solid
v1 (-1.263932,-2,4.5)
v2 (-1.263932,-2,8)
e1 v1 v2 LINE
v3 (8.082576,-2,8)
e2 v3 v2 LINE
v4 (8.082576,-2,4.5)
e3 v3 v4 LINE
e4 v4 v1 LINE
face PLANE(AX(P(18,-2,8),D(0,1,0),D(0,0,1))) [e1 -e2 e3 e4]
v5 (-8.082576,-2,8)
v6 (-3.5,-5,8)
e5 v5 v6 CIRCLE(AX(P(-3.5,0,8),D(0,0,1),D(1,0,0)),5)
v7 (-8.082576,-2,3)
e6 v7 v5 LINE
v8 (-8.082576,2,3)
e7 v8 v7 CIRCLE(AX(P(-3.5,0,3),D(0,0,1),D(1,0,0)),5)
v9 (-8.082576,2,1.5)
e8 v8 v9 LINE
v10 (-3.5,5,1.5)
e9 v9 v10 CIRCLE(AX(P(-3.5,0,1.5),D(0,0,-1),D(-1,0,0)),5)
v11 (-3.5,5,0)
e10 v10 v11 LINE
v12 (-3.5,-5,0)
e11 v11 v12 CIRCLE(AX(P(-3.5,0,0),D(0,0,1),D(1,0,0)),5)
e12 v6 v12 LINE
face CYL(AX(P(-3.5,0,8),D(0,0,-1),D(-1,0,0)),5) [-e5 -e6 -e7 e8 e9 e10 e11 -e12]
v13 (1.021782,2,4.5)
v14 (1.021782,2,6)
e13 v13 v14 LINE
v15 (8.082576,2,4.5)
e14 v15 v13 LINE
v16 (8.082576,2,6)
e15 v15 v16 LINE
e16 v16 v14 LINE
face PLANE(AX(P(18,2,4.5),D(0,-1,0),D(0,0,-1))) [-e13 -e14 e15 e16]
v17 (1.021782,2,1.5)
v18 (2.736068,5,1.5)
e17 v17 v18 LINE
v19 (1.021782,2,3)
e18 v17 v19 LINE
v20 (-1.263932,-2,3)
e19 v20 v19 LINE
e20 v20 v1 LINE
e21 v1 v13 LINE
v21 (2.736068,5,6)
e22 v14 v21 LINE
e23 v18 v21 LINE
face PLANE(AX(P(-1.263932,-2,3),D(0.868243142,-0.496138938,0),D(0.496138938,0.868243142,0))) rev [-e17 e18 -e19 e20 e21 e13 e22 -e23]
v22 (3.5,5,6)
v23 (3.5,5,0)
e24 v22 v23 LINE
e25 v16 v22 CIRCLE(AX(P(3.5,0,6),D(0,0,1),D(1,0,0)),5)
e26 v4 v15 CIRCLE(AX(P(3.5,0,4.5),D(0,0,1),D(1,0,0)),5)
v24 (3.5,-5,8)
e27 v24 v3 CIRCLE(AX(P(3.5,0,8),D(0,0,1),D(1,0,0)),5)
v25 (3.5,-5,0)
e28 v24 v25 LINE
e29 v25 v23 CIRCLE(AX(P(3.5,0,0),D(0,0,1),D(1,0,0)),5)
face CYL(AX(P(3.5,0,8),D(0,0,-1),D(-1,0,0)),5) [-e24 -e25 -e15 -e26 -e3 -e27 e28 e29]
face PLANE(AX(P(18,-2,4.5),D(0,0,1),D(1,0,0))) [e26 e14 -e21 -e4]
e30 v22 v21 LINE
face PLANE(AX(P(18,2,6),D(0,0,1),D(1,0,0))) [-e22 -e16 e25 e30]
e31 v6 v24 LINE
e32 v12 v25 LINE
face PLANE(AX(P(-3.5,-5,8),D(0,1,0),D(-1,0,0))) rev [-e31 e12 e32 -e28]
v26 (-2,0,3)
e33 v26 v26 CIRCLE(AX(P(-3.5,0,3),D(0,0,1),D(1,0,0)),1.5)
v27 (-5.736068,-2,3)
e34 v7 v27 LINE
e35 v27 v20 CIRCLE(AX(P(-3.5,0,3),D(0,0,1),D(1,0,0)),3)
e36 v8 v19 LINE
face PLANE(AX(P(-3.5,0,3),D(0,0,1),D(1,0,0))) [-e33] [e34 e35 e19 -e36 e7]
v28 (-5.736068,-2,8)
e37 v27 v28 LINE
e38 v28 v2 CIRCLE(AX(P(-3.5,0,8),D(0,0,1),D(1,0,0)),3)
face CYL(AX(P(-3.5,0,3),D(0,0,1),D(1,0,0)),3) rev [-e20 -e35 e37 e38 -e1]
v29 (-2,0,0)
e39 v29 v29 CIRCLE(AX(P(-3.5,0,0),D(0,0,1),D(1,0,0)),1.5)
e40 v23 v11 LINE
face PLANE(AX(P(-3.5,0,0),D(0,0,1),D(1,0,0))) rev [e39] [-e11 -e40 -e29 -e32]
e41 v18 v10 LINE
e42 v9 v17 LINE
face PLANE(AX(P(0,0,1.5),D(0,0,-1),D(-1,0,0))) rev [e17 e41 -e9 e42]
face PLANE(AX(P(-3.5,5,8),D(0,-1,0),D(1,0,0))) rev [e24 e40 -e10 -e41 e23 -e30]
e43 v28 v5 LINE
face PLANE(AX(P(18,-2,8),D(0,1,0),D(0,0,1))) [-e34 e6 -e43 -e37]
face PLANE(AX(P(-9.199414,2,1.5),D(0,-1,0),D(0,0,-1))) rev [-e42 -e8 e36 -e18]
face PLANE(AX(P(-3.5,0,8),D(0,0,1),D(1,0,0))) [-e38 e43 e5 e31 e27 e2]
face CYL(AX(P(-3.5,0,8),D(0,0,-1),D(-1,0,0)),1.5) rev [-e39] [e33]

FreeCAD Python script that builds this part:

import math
import FreeCAD as App
import Part
import Sketcher
from FreeCAD import Vector


def add_polygon(sketch, points):
    """Adds a closed chain of lines whose ends are joined by coincident constraints."""
    first, n = sketch.GeometryCount, len(points)
    for a, b in zip(points, points[1:] + points[:1]):
        sketch.addGeometry(Part.LineSegment(App.Vector(*a, 0), App.Vector(*b, 0)), False)
    for i in range(n):
        sketch.addConstraint(Sketcher.Constraint("Coincident", first + i, 2, first + (i + 1) % n, 1))

doc = App.newDocument("Part")
body = doc.addObject("PartDesign::Body", "Body")

sketch1 = body.newObject("Sketcher::SketchObject", "Sketch")
sketch1.AttachmentSupport = (doc.getObject("XY_Plane"), [""])
sketch1.MapMode = "FlatFace"
sketch1.addGeometry(Part.LineSegment(Vector(3.5, 5, 0), Vector(-3.5, 5, 0)), False)
sketch1.addGeometry(Part.ArcOfCircle(Part.Circle(Vector(-3.5, 0, 0), Vector(0, 0, 1), 5), math.radians(90), math.radians(270)), False)
sketch1.addGeometry(Part.LineSegment(Vector(-3.5, -5, 0), Vector(3.5, -5, 0)), False)
sketch1.addGeometry(Part.ArcOfCircle(Part.Circle(Vector(3.5, 0, 0), Vector(0, 0, 1), 5), math.radians(-90), math.radians(90)), False)
sketch1.addGeometry(Part.Circle(Vector(-3.5, 0, 0), Vector(0, 0, 1), 1.5), False)
sketch1.addConstraint(Sketcher.Constraint("Tangent", 0, 2, 1, 1))
sketch1.addConstraint(Sketcher.Constraint("Tangent", 1, 2, 2, 1))
sketch1.addConstraint(Sketcher.Constraint("Tangent", 2, 2, 3, 1))
sketch1.addConstraint(Sketcher.Constraint("Tangent", 3, 2, 0, 1))
sketch1.addConstraint(Sketcher.Constraint("Horizontal", 0))
sketch1.addConstraint(Sketcher.Constraint("Horizontal", 2))
sketch1.addConstraint(Sketcher.Constraint("Coincident", 4, 3, 1, 3))
sketch1.addConstraint(Sketcher.Constraint("Symmetric", 1, 3, 3, 3, -1, 1))
sketch1.addConstraint(Sketcher.Constraint("Diameter", 4, 3.0))
sketch1.addConstraint(Sketcher.Constraint("Radius", 1, 5.0))
sketch1.addConstraint(Sketcher.Constraint("DistanceX", 0, 2, 0, 1, 7.0))
pad1 = body.newObject("PartDesign::Pad", "Pad")
pad1.Profile = sketch1
pad1.Length = 8

sketch2 = body.newObject("Sketcher::SketchObject", "Sketch001")
sketch2.AttachmentSupport = (doc.getObject("YZ_Plane"), [""])
sketch2.MapMode = "FlatFace"
add_polygon(sketch2, [(-2, 8), (-2, 4.5), (2, 4.5), (2, 6), (5, 6), (5, 8)])
sketch2.addConstraint(Sketcher.Constraint("Vertical", 0))
sketch2.addConstraint(Sketcher.Constraint("Horizontal", 1))
sketch2.addConstraint(Sketcher.Constraint("Vertical", 2))
sketch2.addConstraint(Sketcher.Constraint("Horizontal", 3))
sketch2.addConstraint(Sketcher.Constraint("Vertical", 4))
sketch2.addConstraint(Sketcher.Constraint("Horizontal", 5))
sketch2.addConstraint(Sketcher.Constraint("DistanceX", 1, 1, 1, 2, 4.0))
sketch2.addConstraint(Sketcher.Constraint("DistanceX", 3, 1, 3, 2, 3.0))
sketch2.addConstraint(Sketcher.Constraint("DistanceY", 4, 1, 4, 2, 2.0))
sketch2.addConstraint(Sketcher.Constraint("DistanceY", 0, 2, 0, 1, 3.5))
sketch2.addConstraint(Sketcher.Constraint("DistanceX", 0, 2, -1, 1, 2.0))
sketch2.addConstraint(Sketcher.Constraint("DistanceY", -1, 1, 2, 2, 6.0))
pocket1 = body.newObject("PartDesign::Pocket", "Pocket")
pocket1.Profile = sketch2
pocket1.Type = "ThroughAll"
pocket1.Midplane = True

sketch3 = body.newObject("Sketcher::SketchObject", "Sketch002")
sketch3.AttachmentSupport = (doc.getObject("XY_Plane"), [""])
sketch3.MapMode = "FlatFace"
sketch3.AttachmentOffset = App.Placement(Vector(0, 0, 8), App.Rotation())
sketch3.addGeometry(Part.LineSegment(Vector(-1.263932, -2, 0), Vector(2.736068, 5, 0)), False)
sketch3.addGeometry(Part.LineSegment(Vector(2.736068, 5, 0), Vector(-10.787192, 5, 0)), False)
sketch3.addGeometry(Part.LineSegment(Vector(-10.787192, 5, 0), Vector(-10.787192, -2, 0)), False)
sketch3.addGeometry(Part.LineSegment(Vector(-10.787192, -2, 0), Vector(-5.736068, -2, 0)), False)
sketch3.addGeometry(Part.ArcOfCircle(Part.Circle(Vector(-3.5, 0, 0), Vector(0, 0, 1), 3), math.radians(-138.189685), math.radians(-41.810315)), False)
sketch3.addConstraint(Sketcher.Constraint("Coincident", 0, 2, 1, 1))
sketch3.addConstraint(Sketcher.Constraint("Coincident", 1, 2, 2, 1))
sketch3.addConstraint(Sketcher.Constraint("Coincident", 2, 2, 3, 1))
sketch3.addConstraint(Sketcher.Constraint("Coincident", 3, 2, 4, 1))
sketch3.addConstraint(Sketcher.Constraint("Coincident", 4, 2, 0, 1))
sketch3.addConstraint(Sketcher.Constraint("Horizontal", 1))
sketch3.addConstraint(Sketcher.Constraint("Vertical", 2))
sketch3.addConstraint(Sketcher.Constraint("Horizontal", 3))
sketch3.addConstraint(Sketcher.Constraint("PointOnObject", 4, 3, -1))
sketch3.addConstraint(Sketcher.Constraint("Horizontal", 3, 2, 4, 2))
sketch3.addConstraint(Sketcher.Constraint("Radius", 4, 3.0))
sketch3.addConstraint(Sketcher.Constraint("DistanceY", 2, 2, 2, 1, 7.0))
sketch3.addConstraint(Sketcher.Constraint("DistanceY", -1, 1, 0, 2, 5.0))
sketch3.addConstraint(Sketcher.Constraint("DistanceX", 4, 2, 0, 2, 4.0))
sketch3.addConstraint(Sketcher.Constraint("DistanceX", 4, 3, -1, 1, 3.5))
sketch3.addConstraint(Sketcher.Constraint("DistanceX", 1, 2, 1, 1, 13.52326))
pocket2 = body.newObject("PartDesign::Pocket", "Pocket001")
pocket2.Profile = sketch3
pocket2.Length = 5

sketch4 = body.newObject("Sketcher::SketchObject", "Sketch003")
sketch4.AttachmentSupport = (doc.getObject("XY_Plane"), [""])
sketch4.MapMode = "FlatFace"
sketch4.AttachmentOffset = App.Placement(Vector(0, 0, 3), App.Rotation())
add_polygon(sketch4, [(1.021782, 2), (2.736068, 5), (-9.199414, 5), (-9.199414, 2)])
sketch4.addConstraint(Sketcher.Constraint("Horizontal", 1))
sketch4.addConstraint(Sketcher.Constraint("Vertical", 2))
sketch4.addConstraint(Sketcher.Constraint("Horizontal", 3))
sketch4.addConstraint(Sketcher.Constraint("DistanceY", 2, 2, 2, 1, 3.0))
sketch4.addConstraint(Sketcher.Constraint("DistanceY", -1, 1, 0, 2, 5.0))
sketch4.addConstraint(Sketcher.Constraint("DistanceX", 1, 2, 1, 1, 11.935482))
sketch4.addConstraint(Sketcher.Constraint("DistanceX", 3, 1, 3, 2, 10.221196))
sketch4.addConstraint(Sketcher.Constraint("DistanceX", -1, 1, 0, 2, 2.736068))
pocket3 = body.newObject("PartDesign::Pocket", "Pocket002")
pocket3.Profile = sketch4
pocket3.Length = 1.5

doc.recompute()
